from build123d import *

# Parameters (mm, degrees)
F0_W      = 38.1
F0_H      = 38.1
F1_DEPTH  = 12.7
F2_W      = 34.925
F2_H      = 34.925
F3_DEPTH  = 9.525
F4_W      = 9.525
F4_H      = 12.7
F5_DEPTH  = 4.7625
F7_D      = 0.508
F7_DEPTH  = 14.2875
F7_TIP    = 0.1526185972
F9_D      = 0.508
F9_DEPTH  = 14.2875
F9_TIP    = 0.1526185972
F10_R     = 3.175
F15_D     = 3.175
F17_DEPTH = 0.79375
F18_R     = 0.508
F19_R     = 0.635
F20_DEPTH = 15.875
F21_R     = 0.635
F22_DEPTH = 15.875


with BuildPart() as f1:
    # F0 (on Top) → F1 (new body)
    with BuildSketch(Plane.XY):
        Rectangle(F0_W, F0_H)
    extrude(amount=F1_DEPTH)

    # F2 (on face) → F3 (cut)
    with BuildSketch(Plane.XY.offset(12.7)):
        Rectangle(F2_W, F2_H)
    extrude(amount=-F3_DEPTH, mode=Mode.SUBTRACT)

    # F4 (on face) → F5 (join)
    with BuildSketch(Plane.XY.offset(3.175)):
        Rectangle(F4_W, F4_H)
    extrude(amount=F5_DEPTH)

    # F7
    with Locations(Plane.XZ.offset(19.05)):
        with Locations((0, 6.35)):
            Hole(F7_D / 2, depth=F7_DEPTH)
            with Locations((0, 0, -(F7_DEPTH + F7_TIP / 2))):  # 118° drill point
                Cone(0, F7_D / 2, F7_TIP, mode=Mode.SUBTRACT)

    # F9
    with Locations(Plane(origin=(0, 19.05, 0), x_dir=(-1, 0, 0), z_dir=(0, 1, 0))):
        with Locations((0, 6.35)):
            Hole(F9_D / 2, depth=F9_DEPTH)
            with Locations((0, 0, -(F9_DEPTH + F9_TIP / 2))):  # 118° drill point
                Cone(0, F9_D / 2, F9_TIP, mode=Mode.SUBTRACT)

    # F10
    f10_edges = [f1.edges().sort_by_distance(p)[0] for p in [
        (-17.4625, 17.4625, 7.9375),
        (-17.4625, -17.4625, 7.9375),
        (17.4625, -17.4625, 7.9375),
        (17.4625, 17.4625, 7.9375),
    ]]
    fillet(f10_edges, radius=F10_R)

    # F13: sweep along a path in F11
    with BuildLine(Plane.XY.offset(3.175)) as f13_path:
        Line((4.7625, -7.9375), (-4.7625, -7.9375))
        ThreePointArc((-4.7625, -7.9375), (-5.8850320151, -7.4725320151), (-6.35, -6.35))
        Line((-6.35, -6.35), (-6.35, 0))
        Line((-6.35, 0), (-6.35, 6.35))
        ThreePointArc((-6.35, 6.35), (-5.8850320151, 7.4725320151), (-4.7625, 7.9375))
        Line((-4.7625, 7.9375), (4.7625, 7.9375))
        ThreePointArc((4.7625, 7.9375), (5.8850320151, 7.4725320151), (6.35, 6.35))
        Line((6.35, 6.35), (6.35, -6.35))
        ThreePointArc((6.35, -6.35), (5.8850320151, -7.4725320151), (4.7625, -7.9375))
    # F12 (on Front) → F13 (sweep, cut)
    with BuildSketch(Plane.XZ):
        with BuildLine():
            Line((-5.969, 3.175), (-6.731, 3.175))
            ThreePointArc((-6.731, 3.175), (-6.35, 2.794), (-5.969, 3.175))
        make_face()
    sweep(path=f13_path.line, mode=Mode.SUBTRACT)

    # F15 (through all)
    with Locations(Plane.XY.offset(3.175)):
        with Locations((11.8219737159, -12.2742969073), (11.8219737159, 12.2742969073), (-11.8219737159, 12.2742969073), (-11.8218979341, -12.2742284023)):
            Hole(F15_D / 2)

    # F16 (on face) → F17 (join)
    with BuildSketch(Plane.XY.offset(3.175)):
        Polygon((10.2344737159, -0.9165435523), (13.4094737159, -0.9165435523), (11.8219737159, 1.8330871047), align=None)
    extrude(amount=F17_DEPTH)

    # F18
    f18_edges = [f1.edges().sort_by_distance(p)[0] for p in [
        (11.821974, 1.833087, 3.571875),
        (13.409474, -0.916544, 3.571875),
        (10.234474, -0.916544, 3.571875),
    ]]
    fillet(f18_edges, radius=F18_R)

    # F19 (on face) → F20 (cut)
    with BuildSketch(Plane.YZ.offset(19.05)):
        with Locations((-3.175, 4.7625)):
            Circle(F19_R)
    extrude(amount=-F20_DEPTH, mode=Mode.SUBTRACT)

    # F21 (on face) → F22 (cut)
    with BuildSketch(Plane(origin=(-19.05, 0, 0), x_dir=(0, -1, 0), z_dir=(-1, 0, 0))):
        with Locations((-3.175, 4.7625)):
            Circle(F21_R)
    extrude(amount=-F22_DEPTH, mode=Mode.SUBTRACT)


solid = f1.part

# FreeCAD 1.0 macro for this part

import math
import FreeCAD as App
import Part
import Sketcher
Q = App.Units.Quantity


def edges_at(feature, points):
    """Names of the edges that pass closest to the given points."""
    edges = feature.Shape.Edges
    near = lambda p: min(range(len(edges)), key=lambda i: edges[i].distToShape(Part.Vertex(*p))[0])
    return sorted({f"Edge{near(p) + 1}" for p in points})


def add_polygon(sketch, points):
    """Adds a closed chain of lines whose ends are joined by coincident constraints."""
    first, n = sketch.GeometryCount, len(points)
    for a, b in zip(points, points[1:] + points[:1]):
        sketch.addGeometry(Part.LineSegment(App.Vector(*a, 0), App.Vector(*b, 0)), False)
    for i in range(n):
        sketch.addConstraint(Sketcher.Constraint("Coincident", first + i, 2, first + (i + 1) % n, 1))

doc = App.newDocument("Part")
body = doc.addObject("PartDesign::Body", "Body")

sketch1 = body.newObject("Sketcher::SketchObject", "Sketch")
sketch1.AttachmentSupport = (doc.getObject("XY_Plane"), [""])
sketch1.MapMode = "FlatFace"
add_polygon(sketch1, [(-19.05, 19.05), (-19.05, -19.05), (19.05, -19.05), (19.05, 19.05)])
sketch1.addConstraint([
    Sketcher.Constraint("Vertical", 0),
    Sketcher.Constraint("Horizontal", 1),
    Sketcher.Constraint("Vertical", 2),
    Sketcher.Constraint("Horizontal", 3),
    Sketcher.Constraint("Symmetric", 0, 2, 2, 2, -1, 1),
    Sketcher.Constraint("Equal", 3, 0),
    Sketcher.Constraint("DistanceX", 1, 1, 1, 2, Q("1.5 in")),
])
pad1 = body.newObject("PartDesign::Pad", "Pad")
pad1.Profile = sketch1
pad1.Length = Q("0.5 in")

sketch2 = body.newObject("Sketcher::SketchObject", "Sketch001")
sketch2.AttachmentSupport = (doc.getObject("XY_Plane"), [""])
sketch2.MapMode = "FlatFace"
sketch2.AttachmentOffset = App.Placement(App.Vector(0, 0, 0.5 * 25.4), App.Rotation())
add_polygon(sketch2, [(-17.4625, 17.4625), (-17.4625, -17.4625), (17.4625, -17.4625), (17.4625, 17.4625)])
sketch2.addConstraint([
    Sketcher.Constraint("Vertical", 0),
    Sketcher.Constraint("Horizontal", 1),
    Sketcher.Constraint("Vertical", 2),
    Sketcher.Constraint("Horizontal", 3),
    Sketcher.Constraint("Symmetric", 0, 2, 2, 2, -1, 1),
    Sketcher.Constraint("Equal", 3, 0),
    Sketcher.Constraint("DistanceX", 1, 1, 1, 2, Q("1.375 in")),
])
pocket1 = body.newObject("PartDesign::Pocket", "Pocket")
pocket1.Profile = sketch2
pocket1.Length = Q("0.375 in")

sketch3 = body.newObject("Sketcher::SketchObject", "Sketch002")
sketch3.AttachmentSupport = (doc.getObject("XY_Plane"), [""])
sketch3.MapMode = "FlatFace"
sketch3.AttachmentOffset = App.Placement(App.Vector(0, 0, 0.125 * 25.4), App.Rotation())
add_polygon(sketch3, [(-4.7625, 6.35), (-4.7625, -6.35), (4.7625, -6.35), (4.7625, 6.35)])
sketch3.addConstraint([
    Sketcher.Constraint("Vertical", 0),
    Sketcher.Constraint("Horizontal", 1),
    Sketcher.Constraint("Vertical", 2),
    Sketcher.Constraint("Horizontal", 3),
    Sketcher.Constraint("Symmetric", 0, 2, 2, 2, -1, 1),
    Sketcher.Constraint("DistanceY", 0, 2, 0, 1, Q("0.5 in")),
    Sketcher.Constraint("DistanceX", 1, 1, 1, 2, Q("0.375 in")),
])
pad2 = body.newObject("PartDesign::Pad", "Pad001")
pad2.Profile = sketch3
pad2.Length = Q("0.1875 in")

sketch4 = body.newObject("Sketcher::SketchObject", "Sketch003")
sketch4.AttachmentSupport = (doc.getObject("XZ_Plane"), [""])
sketch4.MapMode = "FlatFace"
sketch4.AttachmentOffset = App.Placement(App.Vector(0, 0, 0.75 * 25.4), App.Rotation())
sketch4.addGeometry(Part.Circle(App.Vector(0, 6.35, 0), App.Vector(0, 0, 1), 0.254), False)
sketch4.addConstraint([
    Sketcher.Constraint("PointOnObject", 0, 3, -2),
    Sketcher.Constraint("Diameter", 0, Q("0.02 in")),
    Sketcher.Constraint("DistanceY", -1, 1, 0, 3, Q("0.25 in")),
])
doc.recompute()
hole = body.newObject("PartDesign::Hole", "Hole")
hole.Profile = sketch4
hole.ThreadType = "None"
hole.Diameter = Q("0.02 in")
hole.DepthType = "Dimension"
hole.Depth = Q("0.5625 in")
hole.DrillPoint = "Angled"
hole.DrillPointAngle = 118

sketch5 = body.newObject("Sketcher::SketchObject", "Sketch004")
sketch5.AttachmentSupport = (doc.getObject("XZ_Plane"), [""])
sketch5.MapMode = "FlatFace"
sketch5.AttachmentOffset = App.Placement(App.Vector(0, 0, -0.75 * 25.4), App.Rotation())
sketch5.addGeometry(Part.Circle(App.Vector(0, 6.35, 0), App.Vector(0, 0, 1), 0.254), False)
sketch5.addConstraint([
    Sketcher.Constraint("PointOnObject", 0, 3, -2),
    Sketcher.Constraint("Diameter", 0, Q("0.02 in")),
    Sketcher.Constraint("DistanceY", -1, 1, 0, 3, Q("0.25 in")),
])
doc.recompute()
hole2 = body.newObject("PartDesign::Hole", "Hole001")
hole2.Profile = sketch5
hole2.ThreadType = "None"
hole2.Diameter = Q("0.02 in")
hole2.DepthType = "Dimension"
hole2.Depth = Q("0.5625 in")
hole2.DrillPoint = "Angled"
hole2.DrillPointAngle = 118
hole2.Reversed = True
doc.recompute()

fillet = body.newObject("PartDesign::Fillet", "Fillet")
fillet.Base = (hole2, edges_at(hole2, [
    (-17.462, 17.462, 7.938),
    (-17.462, -17.462, 7.938),
    (17.462, -17.462, 7.938),
    (17.462, 17.462, 7.938),
]))
fillet.Radius = Q("0.125 in")

sketch6 = body.newObject("Sketcher::SketchObject", "Sketch005")
sketch6.AttachmentSupport = (doc.getObject("XZ_Plane"), [""])
sketch6.MapMode = "FlatFace"
sketch6.addGeometry([
    Part.LineSegment(App.Vector(-5.969, 3.175, 0), App.Vector(-6.731, 3.175, 0)),
    Part.ArcOfCircle(Part.Circle(App.Vector(-6.35, 3.175, 0), App.Vector(0, 0, 1), 0.381), math.radians(180), math.radians(360)),
], False)
sketch6.addConstraint([
    Sketcher.Constraint("Coincident", 0, 1, 1, 2),
    Sketcher.Constraint("Coincident", 1, 1, 0, 2),
    Sketcher.Constraint("Horizontal", 0),
    Sketcher.Constraint("Horizontal", 1, 3, 0, 1),
    Sketcher.Constraint("Radius", 1, Q("0.015 in")),
    Sketcher.Constraint("DistanceX", 1, 3, -1, 1, Q("0.25 in")),
    Sketcher.Constraint("DistanceY", -1, 1, 1, 3, Q("0.125 in")),
])

sketch7 = body.newObject("Sketcher::SketchObject", "Sketch006")
sketch7.AttachmentSupport = (doc.getObject("XY_Plane"), [""])
sketch7.MapMode = "FlatFace"
sketch7.AttachmentOffset = App.Placement(App.Vector(0, 0, 0.125 * 25.4), App.Rotation())
sketch7.addGeometry([
    Part.LineSegment(App.Vector(4.7625, -7.9375, 0), App.Vector(-4.7625, -7.9375, 0)),
    Part.ArcOfCircle(Part.Circle(App.Vector(-4.7625, -6.35, 0), App.Vector(0, 0, 1), 1.5875), math.radians(180), math.radians(270)),
    Part.LineSegment(App.Vector(-6.35, -6.35, 0), App.Vector(-6.35, 6.35, 0)),
    Part.ArcOfCircle(Part.Circle(App.Vector(-4.7625, 6.35, 0), App.Vector(0, 0, 1), 1.5875), math.radians(90), math.radians(180)),
    Part.LineSegment(App.Vector(-4.7625, 7.9375, 0), App.Vector(4.7625, 7.9375, 0)),
    Part.ArcOfCircle(Part.Circle(App.Vector(4.7625, 6.35, 0), App.Vector(0, 0, 1), 1.5875), math.radians(0), math.radians(90)),
    Part.LineSegment(App.Vector(6.35, 6.35, 0), App.Vector(6.35, -6.35, 0)),
    Part.ArcOfCircle(Part.Circle(App.Vector(4.7625, -6.35, 0), App.Vector(0, 0, 1), 1.5875), math.radians(-90), math.radians(0)),
], False)
sketch7.addConstraint([
    Sketcher.Constraint("Tangent", 0, 2, 1, 2),
    Sketcher.Constraint("Tangent", 1, 1, 2, 1),
    Sketcher.Constraint("Tangent", 2, 2, 3, 2),
    Sketcher.Constraint("Tangent", 3, 1, 4, 1),
    Sketcher.Constraint("Tangent", 4, 2, 5, 2),
    Sketcher.Constraint("Tangent", 5, 1, 6, 1),
    Sketcher.Constraint("Tangent", 6, 2, 7, 2),
    Sketcher.Constraint("Tangent", 7, 1, 0, 1),
    Sketcher.Constraint("Horizontal", 0),
    Sketcher.Constraint("Vertical", 2),
    Sketcher.Constraint("Horizontal", 4),
    Sketcher.Constraint("Vertical", 6),
    Sketcher.Constraint("Equal", 1, 3),
    Sketcher.Constraint("Equal", 3, 5),
    Sketcher.Constraint("Equal", 5, 7),
    Sketcher.Constraint("Symmetric", 1, 3, 5, 3, -1, 1),
    Sketcher.Constraint("DistanceY", 2, 1, 2, 2, Q("0.5 in")),
    Sketcher.Constraint("Radius", 1, Q("0.0625 in")),
    Sketcher.Constraint("DistanceX", 2, 2, 5, 1, Q("0.5 in")),
])
doc.recompute()

subtractivepipe = body.newObject("PartDesign::SubtractivePipe", "SubtractivePipe")
subtractivepipe.Profile = sketch6
subtractivepipe.Spine = (sketch7, ["Edge1", "Edge2", "Edge3", "Edge4", "Edge5", "Edge6", "Edge7", "Edge8"])

sketch8 = body.newObject("Sketcher::SketchObject", "Sketch007")
sketch8.AttachmentSupport = (doc.getObject("XY_Plane"), [""])
sketch8.MapMode = "FlatFace"
sketch8.AttachmentOffset = App.Placement(App.Vector(0, 0, 0.125 * 25.4), App.Rotation())
sketch8.addGeometry([
    Part.Circle(App.Vector(11.821974, -12.274297, 0), App.Vector(0, 0, 1), 1.5875),
    Part.Circle(App.Vector(11.821974, 12.274297, 0), App.Vector(0, 0, 1), 1.5875),
    Part.Circle(App.Vector(-11.821974, 12.274297, 0), App.Vector(0, 0, 1), 1.5875),
    Part.Circle(App.Vector(-11.821898, -12.274228, 0), App.Vector(0, 0, 1), 1.5875),
], False)
sketch8.addConstraint([
    Sketcher.Constraint("Equal", 0, 1),
    Sketcher.Constraint("Equal", 1, 2),
    Sketcher.Constraint("Equal", 2, 3),
    Sketcher.Constraint("Symmetric", 0, 3, 2, 3, -1, 1),
    Sketcher.Constraint("Symmetric", 1, 3, 2, 3, -2),
    Sketcher.Constraint("Diameter", 0, Q("0.125 in")),
    Sketcher.Constraint("DistanceY", 3, 3, -1, 1, 12.274228),
    Sketcher.Constraint("DistanceX", 3, 3, 0, 3, 23.643872),
    Sketcher.Constraint("DistanceX", -1, 1, 0, 3, 11.821974),
    Sketcher.Constraint("DistanceY", 0, 3, -1, 1, 12.274297),
])
doc.recompute()
hole3 = body.newObject("PartDesign::Hole", "Hole002")
hole3.Profile = sketch8
hole3.ThreadType = "None"
hole3.Diameter = Q("0.125 in")
hole3.DepthType = "ThroughAll"

sketch9 = body.newObject("Sketcher::SketchObject", "Sketch008")
sketch9.AttachmentSupport = (doc.getObject("XY_Plane"), [""])
sketch9.MapMode = "FlatFace"
sketch9.AttachmentOffset = App.Placement(App.Vector(0, 0, 0.125 * 25.4), App.Rotation())
add_polygon(sketch9, [(10.234474, -0.916544), (13.409474, -0.916544), (11.821974, 1.833087)])
sketch9.addConstraint([
    Sketcher.Constraint("Horizontal", 0),
    Sketcher.Constraint("Equal", 1, 2),
    Sketcher.Constraint("Angle", 1, Q("120 deg")),
    Sketcher.Constraint("DistanceX", 0, 1, 0, 2, Q("0.125 in")),
    Sketcher.Constraint("DistanceX", -1, 1, 0, 2, 13.409474),
    Sketcher.Constraint("DistanceY", 0, 2, -1, 1, 0.916544),
])
pad3 = body.newObject("PartDesign::Pad", "Pad002")
pad3.Profile = sketch9
pad3.Length = Q("0.03125 in")
doc.recompute()

fillet2 = body.newObject("PartDesign::Fillet", "Fillet001")
fillet2.Base = (pad3, edges_at(pad3, [(11.822, 1.833, 3.572), (13.409, -0.917, 3.572), (10.234, -0.917, 3.572)]))
fillet2.Radius = Q("0.02 in")

sketch10 = body.newObject("Sketcher::SketchObject", "Sketch009")
sketch10.AttachmentSupport = (doc.getObject("YZ_Plane"), [""])
sketch10.MapMode = "FlatFace"
sketch10.AttachmentOffset = App.Placement(App.Vector(0, 0, 0.75 * 25.4), App.Rotation())
sketch10.addGeometry(Part.Circle(App.Vector(-3.175, 4.7625, 0), App.Vector(0, 0, 1), 0.635), False)
sketch10.addConstraint([
    Sketcher.Constraint("Diameter", 0, Q("0.05 in")),
    Sketcher.Constraint("DistanceX", 0, 3, -1, 1, Q("0.125 in")),
    Sketcher.Constraint("DistanceY", -1, 1, 0, 3, Q("0.1875 in")),
])
pocket2 = body.newObject("PartDesign::Pocket", "Pocket001")
pocket2.Profile = sketch10
pocket2.Length = Q("0.625 in")

sketch11 = body.newObject("Sketcher::SketchObject", "Sketch010")
sketch11.AttachmentSupport = (doc.getObject("YZ_Plane"), [""])
sketch11.MapMode = "FlatFace"
sketch11.AttachmentOffset = App.Placement(App.Vector(0, 0, -0.75 * 25.4), App.Rotation())
sketch11.addGeometry(Part.Circle(App.Vector(3.175, 4.7625, 0), App.Vector(0, 0, 1), 0.635), False)
sketch11.addConstraint([
    Sketcher.Constraint("Diameter", 0, Q("0.05 in")),
    Sketcher.Constraint("DistanceX", -1, 1, 0, 3, Q("0.125 in")),
    Sketcher.Constraint("DistanceY", -1, 1, 0, 3, Q("0.1875 in")),
])
pocket3 = body.newObject("PartDesign::Pocket", "Pocket002")
pocket3.Profile = sketch11
pocket3.Length = Q("0.625 in")
pocket3.Reversed = True

doc.recompute()
